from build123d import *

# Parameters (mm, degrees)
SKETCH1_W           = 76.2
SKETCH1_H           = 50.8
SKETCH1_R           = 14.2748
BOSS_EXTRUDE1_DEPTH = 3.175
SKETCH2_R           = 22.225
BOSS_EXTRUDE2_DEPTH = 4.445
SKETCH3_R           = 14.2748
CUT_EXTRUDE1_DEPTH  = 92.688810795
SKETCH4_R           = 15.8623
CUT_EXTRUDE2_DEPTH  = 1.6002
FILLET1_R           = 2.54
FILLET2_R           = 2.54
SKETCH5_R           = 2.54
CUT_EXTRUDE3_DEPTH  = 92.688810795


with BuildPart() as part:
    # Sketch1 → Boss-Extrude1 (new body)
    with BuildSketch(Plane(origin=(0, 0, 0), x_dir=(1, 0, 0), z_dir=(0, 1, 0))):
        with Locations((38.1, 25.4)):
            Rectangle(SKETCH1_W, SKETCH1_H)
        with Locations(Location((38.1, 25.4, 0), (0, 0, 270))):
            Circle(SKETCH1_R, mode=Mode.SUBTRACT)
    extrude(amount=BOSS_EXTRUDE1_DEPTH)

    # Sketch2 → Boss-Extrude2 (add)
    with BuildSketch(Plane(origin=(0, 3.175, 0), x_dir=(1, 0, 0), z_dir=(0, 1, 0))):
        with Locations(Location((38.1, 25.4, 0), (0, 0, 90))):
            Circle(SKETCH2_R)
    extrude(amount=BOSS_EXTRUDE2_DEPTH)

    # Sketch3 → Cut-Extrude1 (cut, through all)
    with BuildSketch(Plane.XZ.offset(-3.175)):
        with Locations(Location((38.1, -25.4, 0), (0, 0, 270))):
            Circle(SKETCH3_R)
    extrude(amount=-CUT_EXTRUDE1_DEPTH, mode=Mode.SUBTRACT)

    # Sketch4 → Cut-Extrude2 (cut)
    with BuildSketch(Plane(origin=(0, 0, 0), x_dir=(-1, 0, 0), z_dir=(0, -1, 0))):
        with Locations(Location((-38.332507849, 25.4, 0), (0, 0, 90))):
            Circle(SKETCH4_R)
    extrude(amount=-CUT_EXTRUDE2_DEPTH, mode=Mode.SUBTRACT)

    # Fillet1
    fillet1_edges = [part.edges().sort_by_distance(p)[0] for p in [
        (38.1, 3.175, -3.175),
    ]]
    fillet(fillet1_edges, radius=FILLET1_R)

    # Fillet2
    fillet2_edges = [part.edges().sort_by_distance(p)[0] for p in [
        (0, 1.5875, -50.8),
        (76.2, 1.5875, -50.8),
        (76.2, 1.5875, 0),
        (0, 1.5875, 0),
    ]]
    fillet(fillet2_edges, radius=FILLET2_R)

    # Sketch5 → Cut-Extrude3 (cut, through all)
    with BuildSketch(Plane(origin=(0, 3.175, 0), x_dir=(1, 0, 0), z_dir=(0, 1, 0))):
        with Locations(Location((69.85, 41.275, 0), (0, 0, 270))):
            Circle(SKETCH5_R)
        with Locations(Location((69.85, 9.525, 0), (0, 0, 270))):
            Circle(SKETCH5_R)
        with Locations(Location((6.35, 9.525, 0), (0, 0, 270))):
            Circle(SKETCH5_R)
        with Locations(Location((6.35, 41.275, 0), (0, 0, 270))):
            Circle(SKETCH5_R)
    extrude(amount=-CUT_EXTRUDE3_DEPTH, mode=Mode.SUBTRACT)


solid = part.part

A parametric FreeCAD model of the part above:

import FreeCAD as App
import Part
import Sketcher

V = App.Vector
Q = App.Units.Quantity


def edges_at(feature, points):
    """Names of the edges that pass closest to the given points."""
    edges = feature.Shape.Edges
    near = lambda p: min(range(len(edges)), key=lambda i: edges[i].distToShape(Part.Vertex(*p))[0])
    return sorted({f"Edge{near(p) + 1}" for p in points})

doc = App.newDocument("Part")
body = doc.addObject("PartDesign::Body", "Body")

# Sketch on XZ plane
sketch1 = doc.addObject("Sketcher::SketchObject", "Sketch")
body.addObject(sketch1)
sketch1.AttachmentSupport = (doc.XZ_Plane, [""])
sketch1.MapMode = "FlatFace"
sketch1.addGeometry(Part.LineSegment(V(0, -50.8, 0), V(0, 0, 0)), False)
sketch1.addGeometry(Part.LineSegment(V(0, 0, 0), V(76.2, 0, 0)), False)
sketch1.addGeometry(Part.LineSegment(V(76.2, 0, 0), V(76.2, -50.8, 0)), False)
sketch1.addGeometry(Part.LineSegment(V(76.2, -50.8, 0), V(0, -50.8, 0)), False)
sketch1.addGeometry(Part.Circle(V(38.1, -25.4, 0), V(0, 0, 1), 14.2748), False)
sketch1.addConstraint(Sketcher.Constraint("Coincident", 0, 2, 1, 1))
sketch1.addConstraint(Sketcher.Constraint("Coincident", 1, 2, 2, 1))
sketch1.addConstraint(Sketcher.Constraint("Coincident", 2, 2, 3, 1))
sketch1.addConstraint(Sketcher.Constraint("Coincident", 3, 2, 0, 1))
sketch1.addConstraint(Sketcher.Constraint("Vertical", 0))
sketch1.addConstraint(Sketcher.Constraint("Horizontal", 1))
sketch1.addConstraint(Sketcher.Constraint("Vertical", 2))
sketch1.addConstraint(Sketcher.Constraint("Horizontal", 3))
sketch1.addConstraint(Sketcher.Constraint("Coincident", 0, 2, -1, 1))
sketch1.addConstraint(Sketcher.Constraint("DistanceX", 1, 1, 1, 2, Q("3 in")))
sketch1.addConstraint(Sketcher.Constraint("DistanceY", 0, 1, 0, 2, Q("2 in")))
sketch1.addConstraint(Sketcher.Constraint("Diameter", 4, Q("1.124 in")))
sketch1.addConstraint(Sketcher.Constraint("DistanceY", 4, 3, -1, 1, Q("1 in")))
sketch1.addConstraint(Sketcher.Constraint("DistanceX", -1, 1, 4, 3, Q("1.5 in")))
pad1 = doc.addObject("PartDesign::Pad", "Pad")
body.addObject(pad1)
pad1.Profile = sketch1
pad1.Length = Q("0.125 in")
pad1.Reversed = True

# Sketch on XZ plane
sketch2 = doc.addObject("Sketcher::SketchObject", "Sketch001")
body.addObject(sketch2)
sketch2.AttachmentSupport = (doc.XZ_Plane, [""])
sketch2.MapMode = "FlatFace"
sketch2.AttachmentOffset = App.Placement(V(0, 0, -0.125 * 25.4), App.Rotation())
sketch2.addGeometry(Part.Circle(V(38.1, -25.4, 0), V(0, 0, 1), 22.225), False)
sketch2.addConstraint(Sketcher.Constraint("Diameter", 0, Q("1.75 in")))
sketch2.addConstraint(Sketcher.Constraint("DistanceY", 0, 3, -1, 1, Q("1 in")))
sketch2.addConstraint(Sketcher.Constraint("DistanceX", -1, 1, 0, 3, Q("1.5 in")))
pad2 = doc.addObject("PartDesign::Pad", "Pad001")
body.addObject(pad2)
pad2.Profile = sketch2
pad2.Length = Q("0.175 in")
pad2.Reversed = True

# Sketch on XZ plane
sketch3 = doc.addObject("Sketcher::SketchObject", "Sketch002")
body.addObject(sketch3)
sketch3.AttachmentSupport = (doc.XZ_Plane, [""])
sketch3.MapMode = "FlatFace"
sketch3.AttachmentOffset = App.Placement(V(0, 0, -0.125 * 25.4), App.Rotation())
sketch3.addGeometry(Part.Circle(V(38.1, -25.4, 0), V(0, 0, 1), 14.2748), False)
sketch3.addConstraint(Sketcher.Constraint("Diameter", 0, Q("1.124 in")))
sketch3.addConstraint(Sketcher.Constraint("DistanceY", 0, 3, -1, 1, Q("1 in")))
sketch3.addConstraint(Sketcher.Constraint("DistanceX", -1, 1, 0, 3, Q("1.5 in")))
pocket1 = doc.addObject("PartDesign::Pocket", "Pocket")
body.addObject(pocket1)
pocket1.Profile = sketch3
pocket1.Type = "ThroughAll"

# Sketch on XZ plane
sketch4 = doc.addObject("Sketcher::SketchObject", "Sketch003")
body.addObject(sketch4)
sketch4.AttachmentSupport = (doc.XZ_Plane, [""])
sketch4.MapMode = "FlatFace"
sketch4.addGeometry(Part.Circle(V(38.332508, -25.4, 0), V(0, 0, 1), 15.8623), False)
sketch4.addConstraint(Sketcher.Constraint("Diameter", 0, Q("1.249 in")))
sketch4.addConstraint(Sketcher.Constraint("DistanceY", 0, 3, -1, 1, Q("1 in")))
sketch4.addConstraint(Sketcher.Constraint("DistanceX", -1, 1, 0, 3, Q("38.332508 mm")))
pocket2 = doc.addObject("PartDesign::Pocket", "Pocket001")
body.addObject(pocket2)
pocket2.Profile = sketch4
pocket2.Length = Q("0.063 in")
doc.recompute()

fillet = doc.addObject("PartDesign::Fillet", "Fillet")
body.addObject(fillet)
fillet.Base = (pocket2, edges_at(pocket2, [(38.1, 3.175, -3.175)]))
fillet.Radius = Q("0.1 in")
doc.recompute()

fillet2 = doc.addObject("PartDesign::Fillet", "Fillet001")
body.addObject(fillet2)
fillet2.Base = (fillet, edges_at(fillet, [
    (0, 1.587, -50.8),
    (76.2, 1.587, -50.8),
    (76.2, 1.587, 0),
    (0, 1.587, 0),
]))
fillet2.Radius = Q("0.1 in")

# Sketch on XZ plane
sketch5 = doc.addObject("Sketcher::SketchObject", "Sketch004")
body.addObject(sketch5)
sketch5.AttachmentSupport = (doc.XZ_Plane, [""])
sketch5.MapMode = "FlatFace"
sketch5.AttachmentOffset = App.Placement(V(0, 0, -0.125 * 25.4), App.Rotation())
sketch5.addGeometry(Part.Circle(V(69.85, -41.275, 0), V(0, 0, 1), 2.54), False)
sketch5.addGeometry(Part.Circle(V(69.85, -9.525, 0), V(0, 0, 1), 2.54), False)
sketch5.addGeometry(Part.Circle(V(6.35, -9.525, 0), V(0, 0, 1), 2.54), False)
sketch5.addGeometry(Part.Circle(V(6.35, -41.275, 0), V(0, 0, 1), 2.54), False)
sketch5.addConstraint(Sketcher.Constraint("Equal", 0, 1))
sketch5.addConstraint(Sketcher.Constraint("Equal", 1, 2))
sketch5.addConstraint(Sketcher.Constraint("Equal", 2, 3))
sketch5.addConstraint(Sketcher.Constraint("Horizontal", 1, 3, 2, 3))
sketch5.addConstraint(Sketcher.Constraint("Horizontal", 0, 3, 3, 3))
sketch5.addConstraint(Sketcher.Constraint("Vertical", 0, 3, 1, 3))
sketch5.addConstraint(Sketcher.Constraint("Vertical", 2, 3, 3, 3))
sketch5.addConstraint(Sketcher.Constraint("Diameter", 0, Q("0.2 in")))
sketch5.addConstraint(Sketcher.Constraint("DistanceX", 2, 3, 1, 3, Q("2.5 in")))
sketch5.addConstraint(Sketcher.Constraint("DistanceX", -1, 1, 0, 3, Q("2.75 in")))
sketch5.addConstraint(Sketcher.Constraint("DistanceY", 0, 3, 1, 3, Q("1.25 in")))
sketch5.addConstraint(Sketcher.Constraint("DistanceY", 0, 3, -1, 1, Q("1.625 in")))
pocket3 = doc.addObject("PartDesign::Pocket", "Pocket002")
body.addObject(pocket3)
pocket3.Profile = sketch5
pocket3.Type = "ThroughAll"
pocket3.Reversed = True

doc.recompute()
